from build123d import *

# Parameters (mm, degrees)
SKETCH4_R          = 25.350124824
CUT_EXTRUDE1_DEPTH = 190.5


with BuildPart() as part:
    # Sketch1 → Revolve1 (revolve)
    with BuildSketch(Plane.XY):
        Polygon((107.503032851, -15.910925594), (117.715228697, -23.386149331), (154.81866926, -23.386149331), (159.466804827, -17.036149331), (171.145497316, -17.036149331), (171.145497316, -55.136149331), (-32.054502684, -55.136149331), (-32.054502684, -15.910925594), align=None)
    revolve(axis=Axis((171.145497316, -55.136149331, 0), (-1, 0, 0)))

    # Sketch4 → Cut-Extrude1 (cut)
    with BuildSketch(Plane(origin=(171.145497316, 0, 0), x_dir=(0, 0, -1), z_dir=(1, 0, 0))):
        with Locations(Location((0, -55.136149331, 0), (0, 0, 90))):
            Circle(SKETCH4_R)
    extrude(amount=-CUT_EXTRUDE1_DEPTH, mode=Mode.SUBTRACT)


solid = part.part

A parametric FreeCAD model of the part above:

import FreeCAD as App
import Part
import Sketcher
from FreeCAD import Vector
Q = App.Units.Quantity

doc = App.newDocument("Part")
params = doc.addObject("Spreadsheet::Sheet", "Params")
for row, (alias, value) in enumerate([
    ("sketch1_width", "8 in"),
    ("sketch1_height", "1.5 in"),
    ("revolution_angle", "360 deg"),
    ("pocket1_length", "7.5 in"),
], start=1):
    params.set(f"A{row}", alias)
    params.set(f"B{row}", "=" + value)
    params.setAlias(f"B{row}", alias)

body = doc.addObject("PartDesign::Body", "Body")

sketch1 = body.newObject("Sketcher::SketchObject", "Sketch")
sketch1.AttachmentSupport = (doc.getObject("XY_Plane"), [""])
sketch1.MapMode = "FlatFace"
sketch1.addGeometry([
    Part.LineSegment(Vector(118, -23, 0), Vector(108, -16, 0)),
    Part.LineSegment(Vector(108, -16, 0), Vector(-32, -16, 0)),
    Part.LineSegment(Vector(-32, -16, 0), Vector(-32, -55, 0)),
    Part.LineSegment(Vector(-32, -55, 0), Vector(171, -55, 0)),
    Part.LineSegment(Vector(171, -55, 0), Vector(171, -17, 0)),
    Part.LineSegment(Vector(171, -17, 0), Vector(159, -17, 0)),
    Part.LineSegment(Vector(159, -17, 0), Vector(155, -23, 0)),
    Part.LineSegment(Vector(155, -23, 0), Vector(118, -23, 0)),
], False)
sketch1.addGeometry(Part.LineSegment(Vector(171, -55, 0), Vector(-32, -55, 0)), True)
sketch1.addConstraint([
    Sketcher.Constraint("Coincident", 0, 2, 1, 1),
    Sketcher.Constraint("Coincident", 1, 2, 2, 1),
    Sketcher.Constraint("Coincident", 2, 2, 3, 1),
    Sketcher.Constraint("Coincident", 3, 2, 4, 1),
    Sketcher.Constraint("Coincident", 4, 2, 5, 1),
    Sketcher.Constraint("Coincident", 5, 2, 6, 1),
    Sketcher.Constraint("Coincident", 6, 2, 7, 1),
    Sketcher.Constraint("Coincident", 7, 2, 0, 1),
    Sketcher.Constraint("Horizontal", 1),
    Sketcher.Constraint("Vertical", 2),
    Sketcher.Constraint("Horizontal", 3),
    Sketcher.Constraint("Vertical", 4),
    Sketcher.Constraint("Horizontal", 5),
    Sketcher.Constraint("Horizontal", 7),
    Sketcher.Constraint("Horizontal", 8),
    Sketcher.Constraint("Coincident", 8, 1, 3, 2),
    Sketcher.Constraint("Perpendicular", 0, 6),
    Sketcher.Constraint("Vertical", 1, 2, 8, 2),
    Sketcher.Constraint("DistanceX", 3, 1, 3, 2, Q("8 in")),
    Sketcher.Constraint("DistanceY", 4, 1, 4, 2, Q("1.5 in")),
    Sketcher.Constraint("DistanceY", 6, 2, 5, 2, Q("0.25 in")),
    Sketcher.Constraint("DistanceY", 2, 2, 2, 1, Q("1.5443001 in")),
    Sketcher.Constraint("DistanceX", 7, 2, 7, 1, Q("37.103441 mm")),
    Sketcher.Constraint("DistanceX", 1, 2, 1, 1, Q("139.557536 mm")),
    Sketcher.Constraint("DistanceX", 5, 2, 5, 1, Q("11.678692 mm")),
    Sketcher.Constraint("DistanceY", 2, 2, -1, 1, Q("55.136149 mm")),
    Sketcher.Constraint("DistanceX", -1, 1, 6, 2, Q("154.818669 mm")),
])
sketch1.setExpression("Constraints[18]", "Params.sketch1_width")
sketch1.setExpression("Constraints[19]", "Params.sketch1_height")
revolution = body.newObject("PartDesign::Revolution", "Revolution")
revolution.Profile = sketch1
revolution.ReferenceAxis = (sketch1, ["Axis0"])
revolution.setExpression("Angle", "Params.revolution_angle")

sketch2 = body.newObject("Sketcher::SketchObject", "Sketch001")
sketch2.AttachmentSupport = (doc.getObject("YZ_Plane"), [""])
sketch2.MapMode = "FlatFace"
sketch2.AttachmentOffset = App.Placement(Vector(0, 0, 171.145497), App.Rotation())
sketch2.addGeometry(Part.Circle(Vector(-55, 0, 0), Vector(0, 0, 1), 25), False)
sketch2.addConstraint([
    Sketcher.Constraint("PointOnObject", 0, 3, -1),
    Sketcher.Constraint("Diameter", 0, Q("50.70025 mm")),
    Sketcher.Constraint("DistanceX", 0, 3, -1, 1, Q("55.136149 mm")),
])
pocket1 = body.newObject("PartDesign::Pocket", "Pocket")
pocket1.Profile = sketch2
pocket1.setExpression("Length", "Params.pocket1_length")

doc.recompute()
